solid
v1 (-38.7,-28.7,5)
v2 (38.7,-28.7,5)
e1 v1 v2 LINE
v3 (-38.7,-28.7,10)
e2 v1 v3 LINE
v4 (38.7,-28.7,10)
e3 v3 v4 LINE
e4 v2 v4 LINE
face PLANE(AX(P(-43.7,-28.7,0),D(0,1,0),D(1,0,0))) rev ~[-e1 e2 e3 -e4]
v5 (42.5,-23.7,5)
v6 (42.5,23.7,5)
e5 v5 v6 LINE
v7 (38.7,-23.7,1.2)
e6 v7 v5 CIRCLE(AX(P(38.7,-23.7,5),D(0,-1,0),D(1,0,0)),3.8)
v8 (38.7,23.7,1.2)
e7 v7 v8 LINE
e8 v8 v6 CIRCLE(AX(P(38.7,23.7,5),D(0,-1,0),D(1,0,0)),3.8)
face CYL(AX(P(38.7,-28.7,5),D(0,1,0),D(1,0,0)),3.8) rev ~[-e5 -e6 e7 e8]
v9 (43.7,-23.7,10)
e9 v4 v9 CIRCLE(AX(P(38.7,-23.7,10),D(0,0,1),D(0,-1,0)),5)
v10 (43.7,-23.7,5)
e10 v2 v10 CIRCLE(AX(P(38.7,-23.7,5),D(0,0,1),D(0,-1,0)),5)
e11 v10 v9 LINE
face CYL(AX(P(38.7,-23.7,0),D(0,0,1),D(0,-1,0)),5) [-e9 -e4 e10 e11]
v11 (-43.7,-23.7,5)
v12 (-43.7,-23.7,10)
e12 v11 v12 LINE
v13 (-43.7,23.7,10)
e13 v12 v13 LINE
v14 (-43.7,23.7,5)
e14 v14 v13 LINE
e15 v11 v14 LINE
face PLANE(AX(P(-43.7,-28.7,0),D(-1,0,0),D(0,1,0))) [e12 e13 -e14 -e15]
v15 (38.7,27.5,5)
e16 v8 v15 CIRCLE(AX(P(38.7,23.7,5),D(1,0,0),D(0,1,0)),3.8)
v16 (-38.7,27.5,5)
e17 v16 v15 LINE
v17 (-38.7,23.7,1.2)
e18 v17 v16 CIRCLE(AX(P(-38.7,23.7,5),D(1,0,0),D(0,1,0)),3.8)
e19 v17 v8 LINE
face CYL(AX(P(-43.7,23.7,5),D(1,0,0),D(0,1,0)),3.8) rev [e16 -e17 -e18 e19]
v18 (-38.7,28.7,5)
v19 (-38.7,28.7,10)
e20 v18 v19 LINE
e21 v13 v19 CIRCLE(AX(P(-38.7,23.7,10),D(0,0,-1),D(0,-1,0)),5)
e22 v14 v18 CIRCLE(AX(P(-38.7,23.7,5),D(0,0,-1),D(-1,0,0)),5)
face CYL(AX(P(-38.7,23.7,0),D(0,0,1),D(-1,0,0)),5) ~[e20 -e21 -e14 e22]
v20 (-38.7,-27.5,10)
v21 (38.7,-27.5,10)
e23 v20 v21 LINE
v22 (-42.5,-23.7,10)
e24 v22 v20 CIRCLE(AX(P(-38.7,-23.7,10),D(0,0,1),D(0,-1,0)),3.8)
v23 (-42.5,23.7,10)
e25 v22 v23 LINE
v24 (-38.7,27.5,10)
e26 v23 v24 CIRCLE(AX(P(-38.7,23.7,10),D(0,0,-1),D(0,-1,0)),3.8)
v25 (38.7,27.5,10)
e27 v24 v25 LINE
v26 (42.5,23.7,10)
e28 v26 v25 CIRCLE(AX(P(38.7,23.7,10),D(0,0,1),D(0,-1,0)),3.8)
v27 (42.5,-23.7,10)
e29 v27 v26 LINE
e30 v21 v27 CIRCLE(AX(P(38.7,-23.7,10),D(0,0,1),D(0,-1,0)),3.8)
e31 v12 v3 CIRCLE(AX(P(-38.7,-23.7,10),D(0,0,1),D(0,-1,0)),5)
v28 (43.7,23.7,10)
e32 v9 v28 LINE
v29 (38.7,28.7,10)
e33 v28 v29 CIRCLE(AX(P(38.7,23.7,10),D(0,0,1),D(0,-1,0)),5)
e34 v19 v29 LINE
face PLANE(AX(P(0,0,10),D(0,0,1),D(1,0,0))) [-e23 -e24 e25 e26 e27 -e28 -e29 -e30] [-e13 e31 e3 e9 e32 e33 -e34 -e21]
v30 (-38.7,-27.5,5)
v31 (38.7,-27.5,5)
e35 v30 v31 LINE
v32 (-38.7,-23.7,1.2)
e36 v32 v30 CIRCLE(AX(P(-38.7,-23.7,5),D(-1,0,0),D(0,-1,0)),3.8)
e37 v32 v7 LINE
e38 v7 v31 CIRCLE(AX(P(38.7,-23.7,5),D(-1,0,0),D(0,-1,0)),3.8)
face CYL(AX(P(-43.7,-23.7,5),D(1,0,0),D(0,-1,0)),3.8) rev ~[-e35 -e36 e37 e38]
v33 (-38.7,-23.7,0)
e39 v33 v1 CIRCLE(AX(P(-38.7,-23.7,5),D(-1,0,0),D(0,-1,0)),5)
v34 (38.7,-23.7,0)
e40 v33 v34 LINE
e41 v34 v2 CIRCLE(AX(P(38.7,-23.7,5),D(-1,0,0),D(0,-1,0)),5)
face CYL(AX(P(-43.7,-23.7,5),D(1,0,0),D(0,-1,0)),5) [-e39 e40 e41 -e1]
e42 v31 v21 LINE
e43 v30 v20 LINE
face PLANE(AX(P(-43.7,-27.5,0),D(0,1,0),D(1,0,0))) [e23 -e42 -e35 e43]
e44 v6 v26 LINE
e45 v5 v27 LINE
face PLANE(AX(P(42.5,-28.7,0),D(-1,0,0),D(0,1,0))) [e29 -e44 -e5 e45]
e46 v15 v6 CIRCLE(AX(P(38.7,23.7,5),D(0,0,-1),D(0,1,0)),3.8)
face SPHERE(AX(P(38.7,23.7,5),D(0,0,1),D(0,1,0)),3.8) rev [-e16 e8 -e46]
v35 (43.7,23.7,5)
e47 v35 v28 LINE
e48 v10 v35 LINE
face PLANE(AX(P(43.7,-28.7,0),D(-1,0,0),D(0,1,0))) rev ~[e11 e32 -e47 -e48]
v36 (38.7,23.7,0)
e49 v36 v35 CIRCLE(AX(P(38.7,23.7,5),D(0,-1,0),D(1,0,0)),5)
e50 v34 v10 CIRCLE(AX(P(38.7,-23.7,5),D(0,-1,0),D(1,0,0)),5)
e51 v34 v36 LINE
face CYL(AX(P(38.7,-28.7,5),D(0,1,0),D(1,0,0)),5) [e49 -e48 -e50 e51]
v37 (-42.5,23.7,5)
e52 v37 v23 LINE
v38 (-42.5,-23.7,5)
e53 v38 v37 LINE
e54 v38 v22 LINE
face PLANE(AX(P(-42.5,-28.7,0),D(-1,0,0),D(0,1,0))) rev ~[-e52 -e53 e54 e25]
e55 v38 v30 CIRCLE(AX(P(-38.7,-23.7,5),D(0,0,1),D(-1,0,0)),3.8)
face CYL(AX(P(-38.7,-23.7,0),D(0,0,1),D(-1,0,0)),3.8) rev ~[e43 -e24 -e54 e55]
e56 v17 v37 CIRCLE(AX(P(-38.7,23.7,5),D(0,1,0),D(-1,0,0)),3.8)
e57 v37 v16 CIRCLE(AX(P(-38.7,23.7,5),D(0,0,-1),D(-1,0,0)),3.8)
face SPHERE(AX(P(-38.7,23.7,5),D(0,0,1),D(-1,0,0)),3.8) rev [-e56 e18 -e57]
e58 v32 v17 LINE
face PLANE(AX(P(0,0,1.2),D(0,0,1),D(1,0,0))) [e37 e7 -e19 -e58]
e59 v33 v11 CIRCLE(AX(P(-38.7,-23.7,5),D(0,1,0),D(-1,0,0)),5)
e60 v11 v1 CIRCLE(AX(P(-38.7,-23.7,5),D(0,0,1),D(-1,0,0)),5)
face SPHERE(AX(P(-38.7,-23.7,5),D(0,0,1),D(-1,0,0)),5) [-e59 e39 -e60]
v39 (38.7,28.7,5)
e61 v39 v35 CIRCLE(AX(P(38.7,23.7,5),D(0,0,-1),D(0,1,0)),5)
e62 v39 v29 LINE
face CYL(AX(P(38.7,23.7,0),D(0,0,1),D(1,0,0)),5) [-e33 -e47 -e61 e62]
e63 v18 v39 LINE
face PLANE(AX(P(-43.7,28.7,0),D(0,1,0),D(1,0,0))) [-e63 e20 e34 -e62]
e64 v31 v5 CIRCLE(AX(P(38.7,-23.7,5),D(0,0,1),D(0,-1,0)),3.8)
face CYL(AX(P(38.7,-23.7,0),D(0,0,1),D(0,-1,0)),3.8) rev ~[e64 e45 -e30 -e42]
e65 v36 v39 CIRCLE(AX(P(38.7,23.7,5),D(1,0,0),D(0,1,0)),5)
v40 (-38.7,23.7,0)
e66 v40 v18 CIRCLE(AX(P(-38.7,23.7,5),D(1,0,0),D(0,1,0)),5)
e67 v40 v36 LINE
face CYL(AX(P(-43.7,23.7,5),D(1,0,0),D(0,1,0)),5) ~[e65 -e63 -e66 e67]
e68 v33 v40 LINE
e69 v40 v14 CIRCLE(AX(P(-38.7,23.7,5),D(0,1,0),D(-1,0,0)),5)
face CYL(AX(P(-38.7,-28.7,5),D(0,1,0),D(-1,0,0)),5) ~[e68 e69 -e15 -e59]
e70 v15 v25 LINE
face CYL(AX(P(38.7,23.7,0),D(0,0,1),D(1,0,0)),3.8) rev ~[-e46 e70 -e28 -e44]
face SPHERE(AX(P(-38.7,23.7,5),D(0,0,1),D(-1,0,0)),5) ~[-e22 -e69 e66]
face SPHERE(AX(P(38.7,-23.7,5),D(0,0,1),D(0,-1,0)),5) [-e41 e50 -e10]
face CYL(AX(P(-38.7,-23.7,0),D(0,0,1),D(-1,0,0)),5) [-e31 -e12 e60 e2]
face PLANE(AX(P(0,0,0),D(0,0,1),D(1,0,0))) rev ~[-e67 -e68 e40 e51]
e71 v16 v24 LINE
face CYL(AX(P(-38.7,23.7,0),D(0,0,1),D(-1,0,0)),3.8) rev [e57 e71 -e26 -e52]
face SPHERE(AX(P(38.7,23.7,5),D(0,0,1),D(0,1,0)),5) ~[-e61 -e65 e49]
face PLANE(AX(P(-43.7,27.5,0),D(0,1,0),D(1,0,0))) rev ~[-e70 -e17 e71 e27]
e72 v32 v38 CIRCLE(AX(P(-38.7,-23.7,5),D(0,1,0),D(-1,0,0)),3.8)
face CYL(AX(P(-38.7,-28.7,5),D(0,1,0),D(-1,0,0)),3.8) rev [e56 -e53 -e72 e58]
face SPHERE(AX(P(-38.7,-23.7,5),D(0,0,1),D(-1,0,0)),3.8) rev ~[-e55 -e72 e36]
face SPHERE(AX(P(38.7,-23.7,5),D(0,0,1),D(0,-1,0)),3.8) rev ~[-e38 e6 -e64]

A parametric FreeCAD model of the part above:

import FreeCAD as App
import Part
import Sketcher
from FreeCAD import Vector
Q = App.Units.Quantity


def edges_at(feature, points):
    """Names of the edges that pass closest to the given points."""
    edges = feature.Shape.Edges
    near = lambda p: min(range(len(edges)), key=lambda i: edges[i].distToShape(Part.Vertex(*p))[0])
    return sorted({f"Edge{near(p) + 1}" for p in points})


def faces_at(feature, points):
    """Names of the faces that lie closest to the given points."""
    faces = feature.Shape.Faces
    near = lambda p: min(range(len(faces)), key=lambda i: faces[i].distToShape(Part.Vertex(*p))[0])
    return sorted({f"Face{near(p) + 1}" for p in points})

doc = App.newDocument("Part")
body = doc.addObject("PartDesign::Body", "Body")

sketch1 = body.newObject("Sketcher::SketchObject", "Sketch")
sketch1.AttachmentSupport = (doc.getObject("XY_Plane"), [""])
sketch1.MapMode = "FlatFace"
sketch1.addGeometry([
    Part.LineSegment(Vector(-43.7, 28.7, 0), Vector(-43.7, -28.7, 0)),
    Part.LineSegment(Vector(-43.7, -28.7, 0), Vector(43.7, -28.7, 0)),
    Part.LineSegment(Vector(43.7, -28.7, 0), Vector(43.7, 28.7, 0)),
    Part.LineSegment(Vector(43.7, 28.7, 0), Vector(-43.7, 28.7, 0)),
], False)
sketch1.addConstraint([
    Sketcher.Constraint("Coincident", 0, 2, 1, 1),
    Sketcher.Constraint("Coincident", 1, 2, 2, 1),
    Sketcher.Constraint("Coincident", 2, 2, 3, 1),
    Sketcher.Constraint("Coincident", 3, 2, 0, 1),
    Sketcher.Constraint("Vertical", 0),
    Sketcher.Constraint("Horizontal", 1),
    Sketcher.Constraint("Vertical", 2),
    Sketcher.Constraint("Horizontal", 3),
    Sketcher.Constraint("Symmetric", 0, 2, 2, 2, -1, 1),
    Sketcher.Constraint("DistanceX", 1, 1, 1, 2, Q("87.4 mm")),
    Sketcher.Constraint("DistanceY", 0, 2, 0, 1, Q("57.4 mm")),
])
pad1 = body.newObject("PartDesign::Pad", "Pad")
pad1.Profile = sketch1
pad1.Length = 10
doc.recompute()

fillet = body.newObject("PartDesign::Fillet", "Fillet")
fillet.Base = (pad1, edges_at(pad1, [
    (43.7, -28.7, 5),
    (43.7, 28.7, 5),
    (-43.7, 28.7, 5),
    (-43.7, -28.7, 5),
    (-43.7, 0, 0),
    (0, 28.7, 0),
    (0, -28.7, 0),
    (43.7, 0, 0),
]))
fillet.Radius = 5
doc.recompute()

thickness = body.newObject("PartDesign::Thickness", "Thickness")
thickness.Base = (fillet, faces_at(fillet, [(0, 0, 10)]))
thickness.Value = 1.2
thickness.Reversed = True
thickness.Join = "Arc"

doc.recompute()
